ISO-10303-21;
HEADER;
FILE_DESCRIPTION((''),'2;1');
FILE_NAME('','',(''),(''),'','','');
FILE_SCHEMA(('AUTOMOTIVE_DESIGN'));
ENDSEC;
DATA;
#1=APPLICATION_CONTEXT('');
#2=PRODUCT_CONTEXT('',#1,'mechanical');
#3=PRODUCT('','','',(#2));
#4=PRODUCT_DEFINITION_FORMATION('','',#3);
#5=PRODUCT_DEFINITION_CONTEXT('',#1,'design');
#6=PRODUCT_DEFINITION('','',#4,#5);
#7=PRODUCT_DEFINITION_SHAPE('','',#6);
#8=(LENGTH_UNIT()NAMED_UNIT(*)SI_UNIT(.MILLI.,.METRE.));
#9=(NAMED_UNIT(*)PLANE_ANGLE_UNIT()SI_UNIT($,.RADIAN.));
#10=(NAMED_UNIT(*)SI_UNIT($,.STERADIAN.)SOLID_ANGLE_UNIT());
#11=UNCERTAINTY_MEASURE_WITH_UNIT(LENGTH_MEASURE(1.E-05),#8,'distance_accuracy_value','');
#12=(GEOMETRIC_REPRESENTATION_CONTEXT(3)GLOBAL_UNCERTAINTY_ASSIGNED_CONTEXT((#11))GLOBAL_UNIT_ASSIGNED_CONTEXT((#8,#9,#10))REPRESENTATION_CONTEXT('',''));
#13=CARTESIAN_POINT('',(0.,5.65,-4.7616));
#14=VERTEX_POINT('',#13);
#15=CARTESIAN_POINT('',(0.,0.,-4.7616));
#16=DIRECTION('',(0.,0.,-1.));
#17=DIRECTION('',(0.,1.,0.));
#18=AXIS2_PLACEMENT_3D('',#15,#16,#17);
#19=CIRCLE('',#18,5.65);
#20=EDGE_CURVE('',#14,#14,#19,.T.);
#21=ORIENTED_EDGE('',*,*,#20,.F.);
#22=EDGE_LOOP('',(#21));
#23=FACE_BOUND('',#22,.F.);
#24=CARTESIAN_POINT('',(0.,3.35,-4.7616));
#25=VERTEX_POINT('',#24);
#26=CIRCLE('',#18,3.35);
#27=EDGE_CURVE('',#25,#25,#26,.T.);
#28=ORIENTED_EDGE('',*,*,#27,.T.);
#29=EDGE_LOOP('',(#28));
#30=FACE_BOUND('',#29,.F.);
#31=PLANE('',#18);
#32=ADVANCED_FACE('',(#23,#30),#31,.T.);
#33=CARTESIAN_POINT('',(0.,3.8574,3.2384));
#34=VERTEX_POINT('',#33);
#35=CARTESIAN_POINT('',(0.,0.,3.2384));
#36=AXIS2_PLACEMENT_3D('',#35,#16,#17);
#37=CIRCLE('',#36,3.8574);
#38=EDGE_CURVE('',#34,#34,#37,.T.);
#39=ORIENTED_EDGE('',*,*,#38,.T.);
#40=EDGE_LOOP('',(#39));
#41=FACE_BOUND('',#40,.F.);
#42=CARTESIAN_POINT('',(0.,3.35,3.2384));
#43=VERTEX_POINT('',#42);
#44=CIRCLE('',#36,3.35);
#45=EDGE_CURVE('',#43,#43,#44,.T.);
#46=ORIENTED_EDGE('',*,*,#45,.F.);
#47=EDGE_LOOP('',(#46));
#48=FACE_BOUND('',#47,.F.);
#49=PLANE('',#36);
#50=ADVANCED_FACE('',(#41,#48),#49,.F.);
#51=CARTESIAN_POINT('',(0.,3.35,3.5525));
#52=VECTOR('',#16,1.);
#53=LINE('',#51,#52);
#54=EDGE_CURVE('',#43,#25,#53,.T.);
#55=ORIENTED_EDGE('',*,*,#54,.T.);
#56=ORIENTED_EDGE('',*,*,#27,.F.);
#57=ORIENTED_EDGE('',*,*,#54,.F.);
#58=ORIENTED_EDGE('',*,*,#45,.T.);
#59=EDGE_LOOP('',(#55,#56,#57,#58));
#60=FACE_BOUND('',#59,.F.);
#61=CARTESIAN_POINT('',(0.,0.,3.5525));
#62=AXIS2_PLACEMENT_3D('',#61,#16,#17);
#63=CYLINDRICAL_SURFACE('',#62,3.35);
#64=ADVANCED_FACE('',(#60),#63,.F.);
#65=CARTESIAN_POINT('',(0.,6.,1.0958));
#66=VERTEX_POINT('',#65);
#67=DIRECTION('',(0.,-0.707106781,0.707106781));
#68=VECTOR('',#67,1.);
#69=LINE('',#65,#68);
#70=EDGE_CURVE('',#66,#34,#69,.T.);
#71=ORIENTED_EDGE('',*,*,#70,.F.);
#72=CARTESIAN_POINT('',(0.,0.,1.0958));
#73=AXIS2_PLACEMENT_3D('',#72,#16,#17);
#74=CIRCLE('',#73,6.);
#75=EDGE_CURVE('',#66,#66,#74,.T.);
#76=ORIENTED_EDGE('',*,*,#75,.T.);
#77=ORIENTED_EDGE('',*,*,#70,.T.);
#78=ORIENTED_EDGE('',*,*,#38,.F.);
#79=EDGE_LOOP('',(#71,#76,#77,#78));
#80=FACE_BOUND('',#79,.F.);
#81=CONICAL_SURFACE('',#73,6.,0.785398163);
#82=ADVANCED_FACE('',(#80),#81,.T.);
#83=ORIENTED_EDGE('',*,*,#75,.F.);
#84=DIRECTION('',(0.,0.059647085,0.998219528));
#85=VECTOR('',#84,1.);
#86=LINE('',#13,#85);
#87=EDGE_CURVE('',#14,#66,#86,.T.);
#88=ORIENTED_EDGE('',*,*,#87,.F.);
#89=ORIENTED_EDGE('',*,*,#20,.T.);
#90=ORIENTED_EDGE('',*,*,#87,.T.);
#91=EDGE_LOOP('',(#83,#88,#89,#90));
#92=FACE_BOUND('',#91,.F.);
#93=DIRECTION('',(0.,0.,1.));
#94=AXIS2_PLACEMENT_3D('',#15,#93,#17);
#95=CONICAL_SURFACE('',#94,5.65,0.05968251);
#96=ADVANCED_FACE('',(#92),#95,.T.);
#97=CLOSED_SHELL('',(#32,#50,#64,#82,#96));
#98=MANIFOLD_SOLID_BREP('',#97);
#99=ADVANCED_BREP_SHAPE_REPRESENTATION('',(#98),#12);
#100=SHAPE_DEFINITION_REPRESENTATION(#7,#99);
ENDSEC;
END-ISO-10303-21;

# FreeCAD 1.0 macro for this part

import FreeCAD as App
import Part
import Sketcher
Q = App.Units.Quantity

doc = App.newDocument("Part")
body = doc.addObject("PartDesign::Body", "Body")

sketch1 = doc.addObject("Sketcher::SketchObject", "Sketch")
body.addObject(sketch1)
sketch1.AttachmentSupport = (doc.YZ_Plane, [""])
sketch1.MapMode = "FlatFace"
sketch1.addGeometry(Part.LineSegment(App.Vector(3.9, 3.2, 0), App.Vector(3.4, 3.2, 0)), False)
sketch1.addGeometry(Part.LineSegment(App.Vector(3.4, 3.2, 0), App.Vector(3.4, -4.8, 0)), False)
sketch1.addGeometry(Part.LineSegment(App.Vector(3.4, -4.8, 0), App.Vector(5.7, -4.8, 0)), False)
sketch1.addGeometry(Part.LineSegment(App.Vector(5.7, -4.8, 0), App.Vector(6, 1.1, 0)), False)
sketch1.addGeometry(Part.LineSegment(App.Vector(6, 1.1, 0), App.Vector(3.9, 3.2, 0)), False)
sketch1.addConstraint(Sketcher.Constraint("Coincident", 0, 2, 1, 1))
sketch1.addConstraint(Sketcher.Constraint("Coincident", 1, 2, 2, 1))
sketch1.addConstraint(Sketcher.Constraint("Coincident", 2, 2, 3, 1))
sketch1.addConstraint(Sketcher.Constraint("Coincident", 3, 2, 4, 1))
sketch1.addConstraint(Sketcher.Constraint("Coincident", 4, 2, 0, 1))
sketch1.addConstraint(Sketcher.Constraint("Horizontal", 0))
sketch1.addConstraint(Sketcher.Constraint("Vertical", 1))
sketch1.addConstraint(Sketcher.Constraint("Horizontal", 2))
sketch1.addConstraint(Sketcher.Constraint("DistanceY", 1, 2, 1, 1, 8.0))
sketch1.addConstraint(Sketcher.Constraint("DistanceX", -1, 1, 3, 2, 6.0))
sketch1.addConstraint(Sketcher.Constraint("DistanceX", -1, 1, 0, 2, 3.35))
sketch1.addConstraint(Sketcher.Constraint("DistanceX", -1, 1, 2, 2, 5.65))
sketch1.addConstraint(Sketcher.Constraint("Angle", 4, Q("135 deg")))
sketch1.addConstraint(Sketcher.Constraint("Angle", 3, Q("86.5804 deg")))
sketch1.addConstraint(Sketcher.Constraint("DistanceY", -1, 1, 0, 2, 3.2384))
revolution = doc.addObject("PartDesign::Revolution", "Revolution")
body.addObject(revolution)
revolution.Profile = sketch1
revolution.ReferenceAxis = (sketch1, ["V_Axis"])
revolution.Angle = 360

doc.recompute()
